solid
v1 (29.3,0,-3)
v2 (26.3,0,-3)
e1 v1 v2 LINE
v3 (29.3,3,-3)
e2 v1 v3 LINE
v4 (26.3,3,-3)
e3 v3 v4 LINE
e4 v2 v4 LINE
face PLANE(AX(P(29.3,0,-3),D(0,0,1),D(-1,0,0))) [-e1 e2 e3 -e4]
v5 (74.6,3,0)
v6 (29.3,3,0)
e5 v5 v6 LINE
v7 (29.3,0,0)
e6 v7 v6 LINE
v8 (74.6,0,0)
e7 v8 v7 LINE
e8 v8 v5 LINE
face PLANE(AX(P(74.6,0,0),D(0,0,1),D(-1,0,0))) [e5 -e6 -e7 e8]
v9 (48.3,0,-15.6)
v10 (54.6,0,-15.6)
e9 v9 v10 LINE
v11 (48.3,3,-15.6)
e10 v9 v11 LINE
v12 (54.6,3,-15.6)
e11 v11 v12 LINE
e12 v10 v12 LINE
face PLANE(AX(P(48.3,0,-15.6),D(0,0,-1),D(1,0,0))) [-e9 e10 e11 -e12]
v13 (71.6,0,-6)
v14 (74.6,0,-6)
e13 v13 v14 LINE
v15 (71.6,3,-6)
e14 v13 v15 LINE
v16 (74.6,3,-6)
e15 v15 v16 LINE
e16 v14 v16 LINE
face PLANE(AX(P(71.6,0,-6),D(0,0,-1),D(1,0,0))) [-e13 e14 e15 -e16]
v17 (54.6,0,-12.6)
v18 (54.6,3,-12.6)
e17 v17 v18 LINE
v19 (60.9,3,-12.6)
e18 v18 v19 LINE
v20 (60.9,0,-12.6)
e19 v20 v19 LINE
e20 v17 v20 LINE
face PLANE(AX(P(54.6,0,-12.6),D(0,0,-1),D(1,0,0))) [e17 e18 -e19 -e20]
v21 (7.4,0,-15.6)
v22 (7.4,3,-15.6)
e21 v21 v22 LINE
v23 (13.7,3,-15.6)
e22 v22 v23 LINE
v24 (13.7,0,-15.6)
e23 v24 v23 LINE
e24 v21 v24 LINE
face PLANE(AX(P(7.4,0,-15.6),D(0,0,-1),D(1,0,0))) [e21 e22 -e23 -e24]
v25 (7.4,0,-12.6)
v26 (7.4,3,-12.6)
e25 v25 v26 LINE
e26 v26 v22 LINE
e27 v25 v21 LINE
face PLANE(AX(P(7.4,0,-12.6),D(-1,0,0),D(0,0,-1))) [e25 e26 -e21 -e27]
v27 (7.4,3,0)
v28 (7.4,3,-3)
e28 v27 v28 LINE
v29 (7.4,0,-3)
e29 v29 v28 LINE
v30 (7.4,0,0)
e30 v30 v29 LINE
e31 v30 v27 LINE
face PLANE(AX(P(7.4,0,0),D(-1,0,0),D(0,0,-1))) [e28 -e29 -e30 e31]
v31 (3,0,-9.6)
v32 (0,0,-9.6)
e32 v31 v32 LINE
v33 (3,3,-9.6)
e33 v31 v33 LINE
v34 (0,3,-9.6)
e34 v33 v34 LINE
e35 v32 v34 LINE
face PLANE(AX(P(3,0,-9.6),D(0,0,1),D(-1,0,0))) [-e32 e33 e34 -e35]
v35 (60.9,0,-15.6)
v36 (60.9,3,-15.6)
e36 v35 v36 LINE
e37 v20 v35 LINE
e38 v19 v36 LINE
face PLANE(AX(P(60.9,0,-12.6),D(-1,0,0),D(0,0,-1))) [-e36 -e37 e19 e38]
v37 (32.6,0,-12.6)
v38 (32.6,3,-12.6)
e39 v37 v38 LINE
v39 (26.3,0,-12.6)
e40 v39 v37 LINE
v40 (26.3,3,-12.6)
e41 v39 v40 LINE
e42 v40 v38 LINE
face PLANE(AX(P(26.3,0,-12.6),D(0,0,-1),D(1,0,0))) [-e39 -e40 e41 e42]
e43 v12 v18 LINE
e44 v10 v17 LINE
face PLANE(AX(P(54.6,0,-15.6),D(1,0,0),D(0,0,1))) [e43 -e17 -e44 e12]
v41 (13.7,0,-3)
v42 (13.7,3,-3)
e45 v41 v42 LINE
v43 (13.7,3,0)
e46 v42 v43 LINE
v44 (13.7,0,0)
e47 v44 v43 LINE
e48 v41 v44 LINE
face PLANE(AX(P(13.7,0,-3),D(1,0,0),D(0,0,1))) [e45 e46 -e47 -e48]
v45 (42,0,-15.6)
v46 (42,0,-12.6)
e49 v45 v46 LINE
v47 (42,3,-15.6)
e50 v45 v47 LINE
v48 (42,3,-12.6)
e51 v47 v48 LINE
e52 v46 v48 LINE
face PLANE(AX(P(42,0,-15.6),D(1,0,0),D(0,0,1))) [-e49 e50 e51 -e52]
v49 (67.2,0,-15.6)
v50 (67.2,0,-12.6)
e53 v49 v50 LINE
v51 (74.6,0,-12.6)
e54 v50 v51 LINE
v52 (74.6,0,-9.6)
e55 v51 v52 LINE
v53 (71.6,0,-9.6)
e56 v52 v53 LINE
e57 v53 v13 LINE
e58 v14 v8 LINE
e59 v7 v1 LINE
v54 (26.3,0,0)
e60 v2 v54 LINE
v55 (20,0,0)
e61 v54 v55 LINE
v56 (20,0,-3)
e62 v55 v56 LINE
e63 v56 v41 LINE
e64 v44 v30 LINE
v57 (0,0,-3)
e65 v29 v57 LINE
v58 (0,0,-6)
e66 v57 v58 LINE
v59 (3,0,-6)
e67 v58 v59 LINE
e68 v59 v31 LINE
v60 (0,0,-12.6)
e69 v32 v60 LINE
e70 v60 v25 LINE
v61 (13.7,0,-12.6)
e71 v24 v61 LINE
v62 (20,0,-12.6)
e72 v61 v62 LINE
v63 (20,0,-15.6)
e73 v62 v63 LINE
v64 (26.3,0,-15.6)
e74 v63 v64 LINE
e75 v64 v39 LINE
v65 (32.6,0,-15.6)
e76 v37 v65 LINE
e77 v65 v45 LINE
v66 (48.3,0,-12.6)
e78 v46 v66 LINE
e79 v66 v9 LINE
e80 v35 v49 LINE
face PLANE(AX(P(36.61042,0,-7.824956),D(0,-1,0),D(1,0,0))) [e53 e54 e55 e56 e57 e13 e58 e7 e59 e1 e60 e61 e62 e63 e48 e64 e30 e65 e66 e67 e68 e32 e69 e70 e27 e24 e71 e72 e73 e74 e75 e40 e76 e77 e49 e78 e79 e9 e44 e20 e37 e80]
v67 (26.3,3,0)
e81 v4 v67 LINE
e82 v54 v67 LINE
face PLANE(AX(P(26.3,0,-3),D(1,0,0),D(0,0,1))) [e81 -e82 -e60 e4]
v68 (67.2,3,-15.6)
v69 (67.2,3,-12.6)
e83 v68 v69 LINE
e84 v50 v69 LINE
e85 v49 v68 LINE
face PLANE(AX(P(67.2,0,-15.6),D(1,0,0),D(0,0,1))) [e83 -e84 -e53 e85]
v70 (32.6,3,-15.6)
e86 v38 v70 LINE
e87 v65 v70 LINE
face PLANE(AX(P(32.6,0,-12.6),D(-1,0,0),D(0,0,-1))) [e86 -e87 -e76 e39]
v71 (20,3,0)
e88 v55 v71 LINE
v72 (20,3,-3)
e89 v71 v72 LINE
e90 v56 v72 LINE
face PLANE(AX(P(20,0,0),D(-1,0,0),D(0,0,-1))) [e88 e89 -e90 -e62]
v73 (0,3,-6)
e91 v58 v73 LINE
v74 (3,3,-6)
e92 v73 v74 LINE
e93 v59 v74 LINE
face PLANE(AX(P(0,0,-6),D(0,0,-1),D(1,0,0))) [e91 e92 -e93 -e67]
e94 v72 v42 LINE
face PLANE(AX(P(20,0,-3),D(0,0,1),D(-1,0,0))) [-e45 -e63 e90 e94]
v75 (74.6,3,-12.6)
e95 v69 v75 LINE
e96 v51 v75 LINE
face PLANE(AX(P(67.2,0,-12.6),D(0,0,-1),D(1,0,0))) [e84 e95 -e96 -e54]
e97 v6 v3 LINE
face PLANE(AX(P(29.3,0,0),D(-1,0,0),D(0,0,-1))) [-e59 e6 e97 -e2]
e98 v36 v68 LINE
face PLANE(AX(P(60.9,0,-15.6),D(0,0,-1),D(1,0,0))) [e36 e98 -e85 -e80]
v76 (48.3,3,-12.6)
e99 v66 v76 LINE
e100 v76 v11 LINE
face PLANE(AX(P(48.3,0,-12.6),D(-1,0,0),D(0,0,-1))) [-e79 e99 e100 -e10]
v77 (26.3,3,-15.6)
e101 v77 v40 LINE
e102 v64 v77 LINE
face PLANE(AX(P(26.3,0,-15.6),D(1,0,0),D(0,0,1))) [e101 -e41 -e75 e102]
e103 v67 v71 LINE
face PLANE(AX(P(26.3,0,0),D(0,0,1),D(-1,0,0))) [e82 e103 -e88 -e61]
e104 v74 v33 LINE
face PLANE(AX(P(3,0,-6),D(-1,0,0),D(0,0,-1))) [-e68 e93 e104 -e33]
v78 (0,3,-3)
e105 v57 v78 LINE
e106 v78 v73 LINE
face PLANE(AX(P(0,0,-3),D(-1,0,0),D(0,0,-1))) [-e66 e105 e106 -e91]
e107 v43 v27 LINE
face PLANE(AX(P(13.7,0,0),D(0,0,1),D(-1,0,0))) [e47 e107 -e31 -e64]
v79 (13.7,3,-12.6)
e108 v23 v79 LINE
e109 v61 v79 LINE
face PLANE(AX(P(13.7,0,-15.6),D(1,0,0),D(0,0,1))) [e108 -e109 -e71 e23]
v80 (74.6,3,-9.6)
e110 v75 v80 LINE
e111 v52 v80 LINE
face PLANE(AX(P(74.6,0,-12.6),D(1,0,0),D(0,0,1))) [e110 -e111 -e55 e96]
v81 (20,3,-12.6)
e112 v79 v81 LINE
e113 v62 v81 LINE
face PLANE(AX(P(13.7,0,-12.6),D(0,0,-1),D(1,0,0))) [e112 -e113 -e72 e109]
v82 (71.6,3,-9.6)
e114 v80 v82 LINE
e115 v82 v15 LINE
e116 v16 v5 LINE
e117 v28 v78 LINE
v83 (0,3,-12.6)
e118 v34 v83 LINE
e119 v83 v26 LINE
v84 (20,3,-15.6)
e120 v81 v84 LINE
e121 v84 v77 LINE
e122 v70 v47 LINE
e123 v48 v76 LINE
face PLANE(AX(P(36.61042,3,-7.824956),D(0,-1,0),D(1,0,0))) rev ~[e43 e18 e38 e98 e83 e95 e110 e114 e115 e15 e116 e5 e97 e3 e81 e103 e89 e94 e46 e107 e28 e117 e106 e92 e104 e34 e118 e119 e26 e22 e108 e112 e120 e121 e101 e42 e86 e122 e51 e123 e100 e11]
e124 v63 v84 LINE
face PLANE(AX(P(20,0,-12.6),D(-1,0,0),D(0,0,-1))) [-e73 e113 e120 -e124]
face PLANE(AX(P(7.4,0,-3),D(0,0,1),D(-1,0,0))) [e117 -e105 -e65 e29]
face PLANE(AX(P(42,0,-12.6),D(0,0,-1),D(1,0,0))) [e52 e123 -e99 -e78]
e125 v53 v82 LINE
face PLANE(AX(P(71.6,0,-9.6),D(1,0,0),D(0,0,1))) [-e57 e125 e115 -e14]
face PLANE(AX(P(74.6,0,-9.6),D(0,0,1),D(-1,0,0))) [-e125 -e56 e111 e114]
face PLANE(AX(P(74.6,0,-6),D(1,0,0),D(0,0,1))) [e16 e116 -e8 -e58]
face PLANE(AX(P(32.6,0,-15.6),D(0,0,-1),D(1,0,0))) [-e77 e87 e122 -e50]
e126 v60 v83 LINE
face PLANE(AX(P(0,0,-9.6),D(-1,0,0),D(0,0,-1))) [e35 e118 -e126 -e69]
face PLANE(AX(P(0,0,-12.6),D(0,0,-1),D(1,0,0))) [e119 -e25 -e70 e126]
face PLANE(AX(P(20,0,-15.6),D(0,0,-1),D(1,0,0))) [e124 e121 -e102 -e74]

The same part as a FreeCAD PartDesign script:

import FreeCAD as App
import Part
import Sketcher

V = App.Vector

doc = App.newDocument("Part")
body = doc.addObject("PartDesign::Body", "Body")

# Sketch on XZ plane
sketch1 = body.newObject("Sketcher::SketchObject", "Sketch")
sketch1.AttachmentSupport = (doc.getObject("XZ_Plane"), [""])
sketch1.MapMode = "FlatFace"
sketch1.addGeometry(Part.LineSegment(V(7.4, -3, 0), V(0, -3, 0)), False)
sketch1.addGeometry(Part.LineSegment(V(0, -3, 0), V(0, -6, 0)), False)
sketch1.addGeometry(Part.LineSegment(V(0, -6, 0), V(3, -6, 0)), False)
sketch1.addGeometry(Part.LineSegment(V(3, -6, 0), V(3, -9.6, 0)), False)
sketch1.addGeometry(Part.LineSegment(V(3, -9.6, 0), V(0, -9.6, 0)), False)
sketch1.addGeometry(Part.LineSegment(V(0, -9.6, 0), V(0, -12.6, 0)), False)
sketch1.addGeometry(Part.LineSegment(V(0, -12.6, 0), V(7.4, -12.6, 0)), False)
sketch1.addGeometry(Part.LineSegment(V(7.4, -12.6, 0), V(7.4, -15.6, 0)), False)
sketch1.addGeometry(Part.LineSegment(V(7.4, -15.6, 0), V(13.7, -15.6, 0)), False)
sketch1.addGeometry(Part.LineSegment(V(13.7, -15.6, 0), V(13.7, -12.6, 0)), False)
sketch1.addGeometry(Part.LineSegment(V(13.7, -12.6, 0), V(20, -12.6, 0)), False)
sketch1.addGeometry(Part.LineSegment(V(20, -12.6, 0), V(20, -15.6, 0)), False)
sketch1.addGeometry(Part.LineSegment(V(20, -15.6, 0), V(26.3, -15.6, 0)), False)
sketch1.addGeometry(Part.LineSegment(V(26.3, -15.6, 0), V(26.3, -12.6, 0)), False)
sketch1.addGeometry(Part.LineSegment(V(26.3, -12.6, 0), V(32.6, -12.6, 0)), False)
sketch1.addGeometry(Part.LineSegment(V(32.6, -12.6, 0), V(32.6, -15.6, 0)), False)
sketch1.addGeometry(Part.LineSegment(V(32.6, -15.6, 0), V(42, -15.6, 0)), False)
sketch1.addGeometry(Part.LineSegment(V(42, -15.6, 0), V(42, -12.6, 0)), False)
sketch1.addGeometry(Part.LineSegment(V(42, -12.6, 0), V(48.3, -12.6, 0)), False)
sketch1.addGeometry(Part.LineSegment(V(48.3, -12.6, 0), V(48.3, -15.6, 0)), False)
sketch1.addGeometry(Part.LineSegment(V(48.3, -15.6, 0), V(54.6, -15.6, 0)), False)
sketch1.addGeometry(Part.LineSegment(V(54.6, -15.6, 0), V(54.6, -12.6, 0)), False)
sketch1.addGeometry(Part.LineSegment(V(54.6, -12.6, 0), V(60.9, -12.6, 0)), False)
sketch1.addGeometry(Part.LineSegment(V(60.9, -12.6, 0), V(60.9, -15.6, 0)), False)
sketch1.addGeometry(Part.LineSegment(V(60.9, -15.6, 0), V(67.2, -15.6, 0)), False)
sketch1.addGeometry(Part.LineSegment(V(67.2, -15.6, 0), V(67.2, -12.6, 0)), False)
sketch1.addGeometry(Part.LineSegment(V(67.2, -12.6, 0), V(74.6, -12.6, 0)), False)
sketch1.addGeometry(Part.LineSegment(V(74.6, -12.6, 0), V(74.6, -9.6, 0)), False)
sketch1.addGeometry(Part.LineSegment(V(74.6, -9.6, 0), V(71.6, -9.6, 0)), False)
sketch1.addGeometry(Part.LineSegment(V(71.6, -9.6, 0), V(71.6, -6, 0)), False)
sketch1.addGeometry(Part.LineSegment(V(71.6, -6, 0), V(74.6, -6, 0)), False)
sketch1.addGeometry(Part.LineSegment(V(74.6, -6, 0), V(74.6, 0, 0)), False)
sketch1.addGeometry(Part.LineSegment(V(74.6, 0, 0), V(29.3, 0, 0)), False)
sketch1.addGeometry(Part.LineSegment(V(29.3, 0, 0), V(29.3, -3, 0)), False)
sketch1.addGeometry(Part.LineSegment(V(29.3, -3, 0), V(26.3, -3, 0)), False)
sketch1.addGeometry(Part.LineSegment(V(26.3, -3, 0), V(26.3, 0, 0)), False)
sketch1.addGeometry(Part.LineSegment(V(26.3, 0, 0), V(20, 0, 0)), False)
sketch1.addGeometry(Part.LineSegment(V(20, 0, 0), V(20, -3, 0)), False)
sketch1.addGeometry(Part.LineSegment(V(20, -3, 0), V(13.7, -3, 0)), False)
sketch1.addGeometry(Part.LineSegment(V(13.7, -3, 0), V(13.7, 0, 0)), False)
sketch1.addGeometry(Part.LineSegment(V(13.7, 0, 0), V(7.4, 0, 0)), False)
sketch1.addGeometry(Part.LineSegment(V(7.4, 0, 0), V(7.4, -3, 0)), False)
sketch1.addConstraint(Sketcher.Constraint("Coincident", 0, 2, 1, 1))
sketch1.addConstraint(Sketcher.Constraint("Coincident", 1, 2, 2, 1))
sketch1.addConstraint(Sketcher.Constraint("Coincident", 2, 2, 3, 1))
sketch1.addConstraint(Sketcher.Constraint("Coincident", 3, 2, 4, 1))
sketch1.addConstraint(Sketcher.Constraint("Coincident", 4, 2, 5, 1))
sketch1.addConstraint(Sketcher.Constraint("Coincident", 5, 2, 6, 1))
sketch1.addConstraint(Sketcher.Constraint("Coincident", 6, 2, 7, 1))
sketch1.addConstraint(Sketcher.Constraint("Coincident", 7, 2, 8, 1))
sketch1.addConstraint(Sketcher.Constraint("Coincident", 8, 2, 9, 1))
sketch1.addConstraint(Sketcher.Constraint("Coincident", 9, 2, 10, 1))
sketch1.addConstraint(Sketcher.Constraint("Coincident", 10, 2, 11, 1))
sketch1.addConstraint(Sketcher.Constraint("Coincident", 11, 2, 12, 1))
sketch1.addConstraint(Sketcher.Constraint("Coincident", 12, 2, 13, 1))
sketch1.addConstraint(Sketcher.Constraint("Coincident", 13, 2, 14, 1))
sketch1.addConstraint(Sketcher.Constraint("Coincident", 14, 2, 15, 1))
sketch1.addConstraint(Sketcher.Constraint("Coincident", 15, 2, 16, 1))
sketch1.addConstraint(Sketcher.Constraint("Coincident", 16, 2, 17, 1))
sketch1.addConstraint(Sketcher.Constraint("Coincident", 17, 2, 18, 1))
sketch1.addConstraint(Sketcher.Constraint("Coincident", 18, 2, 19, 1))
sketch1.addConstraint(Sketcher.Constraint("Coincident", 19, 2, 20, 1))
sketch1.addConstraint(Sketcher.Constraint("Coincident", 20, 2, 21, 1))
sketch1.addConstraint(Sketcher.Constraint("Coincident", 21, 2, 22, 1))
sketch1.addConstraint(Sketcher.Constraint("Coincident", 22, 2, 23, 1))
sketch1.addConstraint(Sketcher.Constraint("Coincident", 23, 2, 24, 1))
sketch1.addConstraint(Sketcher.Constraint("Coincident", 24, 2, 25, 1))
sketch1.addConstraint(Sketcher.Constraint("Coincident", 25, 2, 26, 1))
sketch1.addConstraint(Sketcher.Constraint("Coincident", 26, 2, 27, 1))
sketch1.addConstraint(Sketcher.Constraint("Coincident", 27, 2, 28, 1))
sketch1.addConstraint(Sketcher.Constraint("Coincident", 28, 2, 29, 1))
sketch1.addConstraint(Sketcher.Constraint("Coincident", 29, 2, 30, 1))
sketch1.addConstraint(Sketcher.Constraint("Coincident", 30, 2, 31, 1))
sketch1.addConstraint(Sketcher.Constraint("Coincident", 31, 2, 32, 1))
sketch1.addConstraint(Sketcher.Constraint("Coincident", 32, 2, 33, 1))
sketch1.addConstraint(Sketcher.Constraint("Coincident", 33, 2, 34, 1))
sketch1.addConstraint(Sketcher.Constraint("Coincident", 34, 2, 35, 1))
sketch1.addConstraint(Sketcher.Constraint("Coincident", 35, 2, 36, 1))
sketch1.addConstraint(Sketcher.Constraint("Coincident", 36, 2, 37, 1))
sketch1.addConstraint(Sketcher.Constraint("Coincident", 37, 2, 38, 1))
sketch1.addConstraint(Sketcher.Constraint("Coincident", 38, 2, 39, 1))
sketch1.addConstraint(Sketcher.Constraint("Coincident", 39, 2, 40, 1))
sketch1.addConstraint(Sketcher.Constraint("Coincident", 40, 2, 41, 1))
sketch1.addConstraint(Sketcher.Constraint("Coincident", 41, 2, 0, 1))
sketch1.addConstraint(Sketcher.Constraint("Horizontal", 0))
sketch1.addConstraint(Sketcher.Constraint("Vertical", 1))
sketch1.addConstraint(Sketcher.Constraint("Horizontal", 2))
sketch1.addConstraint(Sketcher.Constraint("Vertical", 3))
sketch1.addConstraint(Sketcher.Constraint("Horizontal", 4))
sketch1.addConstraint(Sketcher.Constraint("Vertical", 5))
sketch1.addConstraint(Sketcher.Constraint("Horizontal", 6))
sketch1.addConstraint(Sketcher.Constraint("Vertical", 7))
sketch1.addConstraint(Sketcher.Constraint("Horizontal", 8))
sketch1.addConstraint(Sketcher.Constraint("Vertical", 9))
sketch1.addConstraint(Sketcher.Constraint("Horizontal", 10))
sketch1.addConstraint(Sketcher.Constraint("Vertical", 11))
sketch1.addConstraint(Sketcher.Constraint("Horizontal", 12))
sketch1.addConstraint(Sketcher.Constraint("Vertical", 13))
sketch1.addConstraint(Sketcher.Constraint("Horizontal", 14))
sketch1.addConstraint(Sketcher.Constraint("Vertical", 15))
sketch1.addConstraint(Sketcher.Constraint("Horizontal", 16))
sketch1.addConstraint(Sketcher.Constraint("Vertical", 17))
sketch1.addConstraint(Sketcher.Constraint("Horizontal", 18))
sketch1.addConstraint(Sketcher.Constraint("Vertical", 19))
sketch1.addConstraint(Sketcher.Constraint("Horizontal", 20))
sketch1.addConstraint(Sketcher.Constraint("Vertical", 21))
sketch1.addConstraint(Sketcher.Constraint("Horizontal", 22))
sketch1.addConstraint(Sketcher.Constraint("Vertical", 23))
sketch1.addConstraint(Sketcher.Constraint("Horizontal", 24))
sketch1.addConstraint(Sketcher.Constraint("Vertical", 25))
sketch1.addConstraint(Sketcher.Constraint("Horizontal", 26))
sketch1.addConstraint(Sketcher.Constraint("Vertical", 27))
sketch1.addConstraint(Sketcher.Constraint("Horizontal", 28))
sketch1.addConstraint(Sketcher.Constraint("Vertical", 29))
sketch1.addConstraint(Sketcher.Constraint("Horizontal", 30))
sketch1.addConstraint(Sketcher.Constraint("Vertical", 31))
sketch1.addConstraint(Sketcher.Constraint("Horizontal", 32))
sketch1.addConstraint(Sketcher.Constraint("Vertical", 33))
sketch1.addConstraint(Sketcher.Constraint("Horizontal", 34))
sketch1.addConstraint(Sketcher.Constraint("Vertical", 35))
sketch1.addConstraint(Sketcher.Constraint("Horizontal", 36))
sketch1.addConstraint(Sketcher.Constraint("Vertical", 37))
sketch1.addConstraint(Sketcher.Constraint("Horizontal", 38))
sketch1.addConstraint(Sketcher.Constraint("Vertical", 39))
sketch1.addConstraint(Sketcher.Constraint("Horizontal", 40))
sketch1.addConstraint(Sketcher.Constraint("Vertical", 41))
sketch1.addConstraint(Sketcher.Constraint("PointOnObject", 0, 2, -2))
sketch1.addConstraint(Sketcher.Constraint("PointOnObject", 4, 2, -2))
sketch1.addConstraint(Sketcher.Constraint("PointOnObject", 31, 2, -1))
sketch1.addConstraint(Sketcher.Constraint("PointOnObject", 35, 2, -1))
sketch1.addConstraint(Sketcher.Constraint("PointOnObject", 39, 2, -1))
sketch1.addConstraint(Sketcher.Constraint("Horizontal", 6, 2, 9, 2))
sketch1.addConstraint(Sketcher.Constraint("Horizontal", 8, 2, 11, 2))
sketch1.addConstraint(Sketcher.Constraint("Horizontal", 10, 2, 13, 2))
sketch1.addConstraint(Sketcher.Constraint("Horizontal", 12, 2, 15, 2))
sketch1.addConstraint(Sketcher.Constraint("Horizontal", 14, 2, 17, 2))
sketch1.addConstraint(Sketcher.Constraint("Horizontal", 16, 2, 19, 2))
sketch1.addConstraint(Sketcher.Constraint("Horizontal", 18, 2, 21, 2))
sketch1.addConstraint(Sketcher.Constraint("Horizontal", 20, 2, 23, 2))
sketch1.addConstraint(Sketcher.Constraint("Horizontal", 22, 2, 25, 2))
sketch1.addConstraint(Sketcher.Constraint("Horizontal", 4, 2, 27, 2))
sketch1.addConstraint(Sketcher.Constraint("Horizontal", 2, 2, 29, 2))
sketch1.addConstraint(Sketcher.Constraint("Horizontal", 0, 2, 33, 2))
sketch1.addConstraint(Sketcher.Constraint("Horizontal", 34, 2, 37, 2))
sketch1.addConstraint(Sketcher.Constraint("Vertical", 27, 2, 30, 2))
sketch1.addConstraint(Sketcher.Constraint("Vertical", 13, 2, 34, 2))
sketch1.addConstraint(Sketcher.Constraint("Vertical", 11, 2, 36, 2))
sketch1.addConstraint(Sketcher.Constraint("Vertical", 9, 2, 38, 2))
sketch1.addConstraint(Sketcher.Constraint("Vertical", 7, 2, 40, 2))
sketch1.addConstraint(Sketcher.Constraint("Equal", 8, 10))
sketch1.addConstraint(Sketcher.Constraint("Equal", 10, 12))
sketch1.addConstraint(Sketcher.Constraint("Equal", 12, 14))
sketch1.addConstraint(Sketcher.Constraint("Equal", 14, 18))
sketch1.addConstraint(Sketcher.Constraint("Equal", 18, 20))
sketch1.addConstraint(Sketcher.Constraint("Equal", 20, 22))
sketch1.addConstraint(Sketcher.Constraint("Equal", 22, 24))
sketch1.addConstraint(Sketcher.Constraint("Equal", 6, 26))
sketch1.addConstraint(Sketcher.Constraint("Equal", 4, 28))
sketch1.addConstraint(Sketcher.Constraint("Equal", 30, 34))
sketch1.addConstraint(Sketcher.Constraint("Equal", 34, 1))
sketch1.addConstraint(Sketcher.Constraint("Equal", 1, 5))
sketch1.addConstraint(Sketcher.Constraint("Equal", 5, 7))
sketch1.addConstraint(Sketcher.Constraint("Equal", 27, 33))
sketch1.addConstraint(Sketcher.Constraint("DistanceX", 2, 1, 2, 2, 3.0))
sketch1.addConstraint(Sketcher.Constraint("DistanceX", 0, 2, 0, 1, 7.4))
sketch1.addConstraint(Sketcher.Constraint("DistanceX", 8, 1, 8, 2, 6.3))
sketch1.addConstraint(Sketcher.Constraint("DistanceX", 16, 1, 16, 2, 9.4))
sketch1.addConstraint(Sketcher.Constraint("DistanceY", 3, 2, 3, 1, 3.6))
pad1 = body.newObject("PartDesign::Pad", "Pad")
pad1.Profile = sketch1
pad1.Length = 3
pad1.Reversed = True

doc.recompute()
